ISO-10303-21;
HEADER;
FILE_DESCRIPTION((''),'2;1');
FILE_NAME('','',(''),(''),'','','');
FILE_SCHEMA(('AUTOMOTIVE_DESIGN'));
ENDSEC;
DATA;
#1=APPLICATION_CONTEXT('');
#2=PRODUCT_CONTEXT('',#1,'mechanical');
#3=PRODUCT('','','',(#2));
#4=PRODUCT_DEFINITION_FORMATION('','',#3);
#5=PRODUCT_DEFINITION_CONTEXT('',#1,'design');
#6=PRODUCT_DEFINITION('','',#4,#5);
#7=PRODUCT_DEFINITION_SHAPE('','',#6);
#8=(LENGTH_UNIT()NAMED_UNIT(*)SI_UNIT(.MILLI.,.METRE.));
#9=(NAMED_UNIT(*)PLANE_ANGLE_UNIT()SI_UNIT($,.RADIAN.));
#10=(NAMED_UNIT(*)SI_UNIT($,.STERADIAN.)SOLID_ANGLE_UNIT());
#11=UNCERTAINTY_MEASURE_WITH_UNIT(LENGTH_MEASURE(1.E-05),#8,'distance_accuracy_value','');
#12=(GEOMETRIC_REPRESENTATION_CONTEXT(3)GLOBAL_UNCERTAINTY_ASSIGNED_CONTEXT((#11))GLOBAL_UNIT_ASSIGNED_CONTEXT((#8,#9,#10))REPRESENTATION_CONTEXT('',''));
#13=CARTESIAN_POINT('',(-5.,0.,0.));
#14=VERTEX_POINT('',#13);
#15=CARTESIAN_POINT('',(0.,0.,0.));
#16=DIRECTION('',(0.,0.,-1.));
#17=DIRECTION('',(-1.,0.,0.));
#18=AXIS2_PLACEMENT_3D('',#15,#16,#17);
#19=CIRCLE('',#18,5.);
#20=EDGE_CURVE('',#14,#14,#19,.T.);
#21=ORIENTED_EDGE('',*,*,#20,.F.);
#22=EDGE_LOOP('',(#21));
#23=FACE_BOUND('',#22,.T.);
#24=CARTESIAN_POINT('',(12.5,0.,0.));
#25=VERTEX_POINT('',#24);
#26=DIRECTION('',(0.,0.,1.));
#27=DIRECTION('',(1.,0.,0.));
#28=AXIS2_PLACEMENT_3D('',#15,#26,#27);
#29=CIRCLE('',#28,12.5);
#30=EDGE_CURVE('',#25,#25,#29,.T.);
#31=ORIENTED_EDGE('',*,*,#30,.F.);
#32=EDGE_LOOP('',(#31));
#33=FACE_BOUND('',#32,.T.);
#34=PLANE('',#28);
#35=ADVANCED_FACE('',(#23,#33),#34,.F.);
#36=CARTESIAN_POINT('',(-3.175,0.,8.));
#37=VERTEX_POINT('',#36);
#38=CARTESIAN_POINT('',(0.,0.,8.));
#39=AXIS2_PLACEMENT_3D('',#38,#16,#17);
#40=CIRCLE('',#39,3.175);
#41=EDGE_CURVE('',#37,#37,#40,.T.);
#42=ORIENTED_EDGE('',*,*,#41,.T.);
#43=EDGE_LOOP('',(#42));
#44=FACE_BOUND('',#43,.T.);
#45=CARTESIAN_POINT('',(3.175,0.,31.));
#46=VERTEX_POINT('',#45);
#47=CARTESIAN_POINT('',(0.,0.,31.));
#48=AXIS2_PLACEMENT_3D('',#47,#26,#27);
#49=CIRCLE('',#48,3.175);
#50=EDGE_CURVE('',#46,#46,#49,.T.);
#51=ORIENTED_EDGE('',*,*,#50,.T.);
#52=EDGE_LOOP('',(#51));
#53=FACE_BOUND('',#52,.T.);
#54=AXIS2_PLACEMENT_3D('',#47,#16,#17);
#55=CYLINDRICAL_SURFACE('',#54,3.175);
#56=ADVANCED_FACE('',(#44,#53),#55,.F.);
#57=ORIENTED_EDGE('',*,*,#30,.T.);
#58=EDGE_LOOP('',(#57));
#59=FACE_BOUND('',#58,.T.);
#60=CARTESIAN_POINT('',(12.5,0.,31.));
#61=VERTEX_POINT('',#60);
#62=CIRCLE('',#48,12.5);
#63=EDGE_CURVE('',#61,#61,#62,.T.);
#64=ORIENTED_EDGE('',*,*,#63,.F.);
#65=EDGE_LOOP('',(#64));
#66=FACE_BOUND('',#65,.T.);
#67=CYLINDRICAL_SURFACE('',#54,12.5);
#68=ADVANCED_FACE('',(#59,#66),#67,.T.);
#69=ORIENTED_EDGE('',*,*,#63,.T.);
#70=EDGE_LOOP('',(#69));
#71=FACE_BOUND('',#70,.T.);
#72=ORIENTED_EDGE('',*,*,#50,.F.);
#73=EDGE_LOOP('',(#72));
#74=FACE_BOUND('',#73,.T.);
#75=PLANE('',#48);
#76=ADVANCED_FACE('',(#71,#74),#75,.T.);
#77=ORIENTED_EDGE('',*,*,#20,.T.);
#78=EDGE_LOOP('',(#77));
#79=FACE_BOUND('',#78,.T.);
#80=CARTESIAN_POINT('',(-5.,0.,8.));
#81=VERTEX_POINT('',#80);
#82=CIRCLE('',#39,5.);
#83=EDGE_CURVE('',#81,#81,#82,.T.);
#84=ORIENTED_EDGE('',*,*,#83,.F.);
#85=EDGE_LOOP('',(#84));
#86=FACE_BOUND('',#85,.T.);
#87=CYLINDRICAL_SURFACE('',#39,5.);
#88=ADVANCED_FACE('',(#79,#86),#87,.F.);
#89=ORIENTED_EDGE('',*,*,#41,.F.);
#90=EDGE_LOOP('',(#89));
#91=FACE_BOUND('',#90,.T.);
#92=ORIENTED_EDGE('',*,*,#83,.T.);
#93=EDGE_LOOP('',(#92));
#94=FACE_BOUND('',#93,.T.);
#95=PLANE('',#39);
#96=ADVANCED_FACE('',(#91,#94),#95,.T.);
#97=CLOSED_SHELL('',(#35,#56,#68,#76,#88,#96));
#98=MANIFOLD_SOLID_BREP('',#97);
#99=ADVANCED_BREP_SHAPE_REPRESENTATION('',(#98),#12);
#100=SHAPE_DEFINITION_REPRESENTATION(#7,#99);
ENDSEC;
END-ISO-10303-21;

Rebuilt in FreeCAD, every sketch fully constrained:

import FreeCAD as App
import Part
import Sketcher

doc = App.newDocument("Part")
body = doc.addObject("PartDesign::Body", "Body")

sketch1 = doc.addObject("Sketcher::SketchObject", "Sketch")
body.addObject(sketch1)
sketch1.AttachmentSupport = (doc.XY_Plane, [""])
sketch1.MapMode = "FlatFace"
sketch1.addGeometry([
    Part.Circle(App.Vector(0, 0, 0), App.Vector(0, 0, 1), 12.5),
    Part.Circle(App.Vector(0, 0, 0), App.Vector(0, 0, 1), 3.2),
], False)
sketch1.addConstraint([
    Sketcher.Constraint("Coincident", 0, 3, -1, 1),
    Sketcher.Constraint("Coincident", 1, 3, -1, 1),
    Sketcher.Constraint("Diameter", 0, 25.0),
    Sketcher.Constraint("Diameter", 1, 6.35),
])
pad1 = doc.addObject("PartDesign::Pad", "Pad")
body.addObject(pad1)
pad1.Profile = sketch1
pad1.Length = 31

sketch2 = doc.addObject("Sketcher::SketchObject", "Sketch001")
body.addObject(sketch2)
sketch2.AttachmentSupport = (doc.XY_Plane, [""])
sketch2.MapMode = "FlatFace"
sketch2.addGeometry(Part.Circle(App.Vector(0, 0, 0), App.Vector(0, 0, 1), 5), False)
sketch2.addConstraint([
    Sketcher.Constraint("Coincident", 0, 3, -1, 1),
    Sketcher.Constraint("Diameter", 0, 10.0),
])
pocket1 = doc.addObject("PartDesign::Pocket", "Pocket")
body.addObject(pocket1)
pocket1.Profile = sketch2
pocket1.Length = 8
pocket1.Reversed = True

doc.recompute()
